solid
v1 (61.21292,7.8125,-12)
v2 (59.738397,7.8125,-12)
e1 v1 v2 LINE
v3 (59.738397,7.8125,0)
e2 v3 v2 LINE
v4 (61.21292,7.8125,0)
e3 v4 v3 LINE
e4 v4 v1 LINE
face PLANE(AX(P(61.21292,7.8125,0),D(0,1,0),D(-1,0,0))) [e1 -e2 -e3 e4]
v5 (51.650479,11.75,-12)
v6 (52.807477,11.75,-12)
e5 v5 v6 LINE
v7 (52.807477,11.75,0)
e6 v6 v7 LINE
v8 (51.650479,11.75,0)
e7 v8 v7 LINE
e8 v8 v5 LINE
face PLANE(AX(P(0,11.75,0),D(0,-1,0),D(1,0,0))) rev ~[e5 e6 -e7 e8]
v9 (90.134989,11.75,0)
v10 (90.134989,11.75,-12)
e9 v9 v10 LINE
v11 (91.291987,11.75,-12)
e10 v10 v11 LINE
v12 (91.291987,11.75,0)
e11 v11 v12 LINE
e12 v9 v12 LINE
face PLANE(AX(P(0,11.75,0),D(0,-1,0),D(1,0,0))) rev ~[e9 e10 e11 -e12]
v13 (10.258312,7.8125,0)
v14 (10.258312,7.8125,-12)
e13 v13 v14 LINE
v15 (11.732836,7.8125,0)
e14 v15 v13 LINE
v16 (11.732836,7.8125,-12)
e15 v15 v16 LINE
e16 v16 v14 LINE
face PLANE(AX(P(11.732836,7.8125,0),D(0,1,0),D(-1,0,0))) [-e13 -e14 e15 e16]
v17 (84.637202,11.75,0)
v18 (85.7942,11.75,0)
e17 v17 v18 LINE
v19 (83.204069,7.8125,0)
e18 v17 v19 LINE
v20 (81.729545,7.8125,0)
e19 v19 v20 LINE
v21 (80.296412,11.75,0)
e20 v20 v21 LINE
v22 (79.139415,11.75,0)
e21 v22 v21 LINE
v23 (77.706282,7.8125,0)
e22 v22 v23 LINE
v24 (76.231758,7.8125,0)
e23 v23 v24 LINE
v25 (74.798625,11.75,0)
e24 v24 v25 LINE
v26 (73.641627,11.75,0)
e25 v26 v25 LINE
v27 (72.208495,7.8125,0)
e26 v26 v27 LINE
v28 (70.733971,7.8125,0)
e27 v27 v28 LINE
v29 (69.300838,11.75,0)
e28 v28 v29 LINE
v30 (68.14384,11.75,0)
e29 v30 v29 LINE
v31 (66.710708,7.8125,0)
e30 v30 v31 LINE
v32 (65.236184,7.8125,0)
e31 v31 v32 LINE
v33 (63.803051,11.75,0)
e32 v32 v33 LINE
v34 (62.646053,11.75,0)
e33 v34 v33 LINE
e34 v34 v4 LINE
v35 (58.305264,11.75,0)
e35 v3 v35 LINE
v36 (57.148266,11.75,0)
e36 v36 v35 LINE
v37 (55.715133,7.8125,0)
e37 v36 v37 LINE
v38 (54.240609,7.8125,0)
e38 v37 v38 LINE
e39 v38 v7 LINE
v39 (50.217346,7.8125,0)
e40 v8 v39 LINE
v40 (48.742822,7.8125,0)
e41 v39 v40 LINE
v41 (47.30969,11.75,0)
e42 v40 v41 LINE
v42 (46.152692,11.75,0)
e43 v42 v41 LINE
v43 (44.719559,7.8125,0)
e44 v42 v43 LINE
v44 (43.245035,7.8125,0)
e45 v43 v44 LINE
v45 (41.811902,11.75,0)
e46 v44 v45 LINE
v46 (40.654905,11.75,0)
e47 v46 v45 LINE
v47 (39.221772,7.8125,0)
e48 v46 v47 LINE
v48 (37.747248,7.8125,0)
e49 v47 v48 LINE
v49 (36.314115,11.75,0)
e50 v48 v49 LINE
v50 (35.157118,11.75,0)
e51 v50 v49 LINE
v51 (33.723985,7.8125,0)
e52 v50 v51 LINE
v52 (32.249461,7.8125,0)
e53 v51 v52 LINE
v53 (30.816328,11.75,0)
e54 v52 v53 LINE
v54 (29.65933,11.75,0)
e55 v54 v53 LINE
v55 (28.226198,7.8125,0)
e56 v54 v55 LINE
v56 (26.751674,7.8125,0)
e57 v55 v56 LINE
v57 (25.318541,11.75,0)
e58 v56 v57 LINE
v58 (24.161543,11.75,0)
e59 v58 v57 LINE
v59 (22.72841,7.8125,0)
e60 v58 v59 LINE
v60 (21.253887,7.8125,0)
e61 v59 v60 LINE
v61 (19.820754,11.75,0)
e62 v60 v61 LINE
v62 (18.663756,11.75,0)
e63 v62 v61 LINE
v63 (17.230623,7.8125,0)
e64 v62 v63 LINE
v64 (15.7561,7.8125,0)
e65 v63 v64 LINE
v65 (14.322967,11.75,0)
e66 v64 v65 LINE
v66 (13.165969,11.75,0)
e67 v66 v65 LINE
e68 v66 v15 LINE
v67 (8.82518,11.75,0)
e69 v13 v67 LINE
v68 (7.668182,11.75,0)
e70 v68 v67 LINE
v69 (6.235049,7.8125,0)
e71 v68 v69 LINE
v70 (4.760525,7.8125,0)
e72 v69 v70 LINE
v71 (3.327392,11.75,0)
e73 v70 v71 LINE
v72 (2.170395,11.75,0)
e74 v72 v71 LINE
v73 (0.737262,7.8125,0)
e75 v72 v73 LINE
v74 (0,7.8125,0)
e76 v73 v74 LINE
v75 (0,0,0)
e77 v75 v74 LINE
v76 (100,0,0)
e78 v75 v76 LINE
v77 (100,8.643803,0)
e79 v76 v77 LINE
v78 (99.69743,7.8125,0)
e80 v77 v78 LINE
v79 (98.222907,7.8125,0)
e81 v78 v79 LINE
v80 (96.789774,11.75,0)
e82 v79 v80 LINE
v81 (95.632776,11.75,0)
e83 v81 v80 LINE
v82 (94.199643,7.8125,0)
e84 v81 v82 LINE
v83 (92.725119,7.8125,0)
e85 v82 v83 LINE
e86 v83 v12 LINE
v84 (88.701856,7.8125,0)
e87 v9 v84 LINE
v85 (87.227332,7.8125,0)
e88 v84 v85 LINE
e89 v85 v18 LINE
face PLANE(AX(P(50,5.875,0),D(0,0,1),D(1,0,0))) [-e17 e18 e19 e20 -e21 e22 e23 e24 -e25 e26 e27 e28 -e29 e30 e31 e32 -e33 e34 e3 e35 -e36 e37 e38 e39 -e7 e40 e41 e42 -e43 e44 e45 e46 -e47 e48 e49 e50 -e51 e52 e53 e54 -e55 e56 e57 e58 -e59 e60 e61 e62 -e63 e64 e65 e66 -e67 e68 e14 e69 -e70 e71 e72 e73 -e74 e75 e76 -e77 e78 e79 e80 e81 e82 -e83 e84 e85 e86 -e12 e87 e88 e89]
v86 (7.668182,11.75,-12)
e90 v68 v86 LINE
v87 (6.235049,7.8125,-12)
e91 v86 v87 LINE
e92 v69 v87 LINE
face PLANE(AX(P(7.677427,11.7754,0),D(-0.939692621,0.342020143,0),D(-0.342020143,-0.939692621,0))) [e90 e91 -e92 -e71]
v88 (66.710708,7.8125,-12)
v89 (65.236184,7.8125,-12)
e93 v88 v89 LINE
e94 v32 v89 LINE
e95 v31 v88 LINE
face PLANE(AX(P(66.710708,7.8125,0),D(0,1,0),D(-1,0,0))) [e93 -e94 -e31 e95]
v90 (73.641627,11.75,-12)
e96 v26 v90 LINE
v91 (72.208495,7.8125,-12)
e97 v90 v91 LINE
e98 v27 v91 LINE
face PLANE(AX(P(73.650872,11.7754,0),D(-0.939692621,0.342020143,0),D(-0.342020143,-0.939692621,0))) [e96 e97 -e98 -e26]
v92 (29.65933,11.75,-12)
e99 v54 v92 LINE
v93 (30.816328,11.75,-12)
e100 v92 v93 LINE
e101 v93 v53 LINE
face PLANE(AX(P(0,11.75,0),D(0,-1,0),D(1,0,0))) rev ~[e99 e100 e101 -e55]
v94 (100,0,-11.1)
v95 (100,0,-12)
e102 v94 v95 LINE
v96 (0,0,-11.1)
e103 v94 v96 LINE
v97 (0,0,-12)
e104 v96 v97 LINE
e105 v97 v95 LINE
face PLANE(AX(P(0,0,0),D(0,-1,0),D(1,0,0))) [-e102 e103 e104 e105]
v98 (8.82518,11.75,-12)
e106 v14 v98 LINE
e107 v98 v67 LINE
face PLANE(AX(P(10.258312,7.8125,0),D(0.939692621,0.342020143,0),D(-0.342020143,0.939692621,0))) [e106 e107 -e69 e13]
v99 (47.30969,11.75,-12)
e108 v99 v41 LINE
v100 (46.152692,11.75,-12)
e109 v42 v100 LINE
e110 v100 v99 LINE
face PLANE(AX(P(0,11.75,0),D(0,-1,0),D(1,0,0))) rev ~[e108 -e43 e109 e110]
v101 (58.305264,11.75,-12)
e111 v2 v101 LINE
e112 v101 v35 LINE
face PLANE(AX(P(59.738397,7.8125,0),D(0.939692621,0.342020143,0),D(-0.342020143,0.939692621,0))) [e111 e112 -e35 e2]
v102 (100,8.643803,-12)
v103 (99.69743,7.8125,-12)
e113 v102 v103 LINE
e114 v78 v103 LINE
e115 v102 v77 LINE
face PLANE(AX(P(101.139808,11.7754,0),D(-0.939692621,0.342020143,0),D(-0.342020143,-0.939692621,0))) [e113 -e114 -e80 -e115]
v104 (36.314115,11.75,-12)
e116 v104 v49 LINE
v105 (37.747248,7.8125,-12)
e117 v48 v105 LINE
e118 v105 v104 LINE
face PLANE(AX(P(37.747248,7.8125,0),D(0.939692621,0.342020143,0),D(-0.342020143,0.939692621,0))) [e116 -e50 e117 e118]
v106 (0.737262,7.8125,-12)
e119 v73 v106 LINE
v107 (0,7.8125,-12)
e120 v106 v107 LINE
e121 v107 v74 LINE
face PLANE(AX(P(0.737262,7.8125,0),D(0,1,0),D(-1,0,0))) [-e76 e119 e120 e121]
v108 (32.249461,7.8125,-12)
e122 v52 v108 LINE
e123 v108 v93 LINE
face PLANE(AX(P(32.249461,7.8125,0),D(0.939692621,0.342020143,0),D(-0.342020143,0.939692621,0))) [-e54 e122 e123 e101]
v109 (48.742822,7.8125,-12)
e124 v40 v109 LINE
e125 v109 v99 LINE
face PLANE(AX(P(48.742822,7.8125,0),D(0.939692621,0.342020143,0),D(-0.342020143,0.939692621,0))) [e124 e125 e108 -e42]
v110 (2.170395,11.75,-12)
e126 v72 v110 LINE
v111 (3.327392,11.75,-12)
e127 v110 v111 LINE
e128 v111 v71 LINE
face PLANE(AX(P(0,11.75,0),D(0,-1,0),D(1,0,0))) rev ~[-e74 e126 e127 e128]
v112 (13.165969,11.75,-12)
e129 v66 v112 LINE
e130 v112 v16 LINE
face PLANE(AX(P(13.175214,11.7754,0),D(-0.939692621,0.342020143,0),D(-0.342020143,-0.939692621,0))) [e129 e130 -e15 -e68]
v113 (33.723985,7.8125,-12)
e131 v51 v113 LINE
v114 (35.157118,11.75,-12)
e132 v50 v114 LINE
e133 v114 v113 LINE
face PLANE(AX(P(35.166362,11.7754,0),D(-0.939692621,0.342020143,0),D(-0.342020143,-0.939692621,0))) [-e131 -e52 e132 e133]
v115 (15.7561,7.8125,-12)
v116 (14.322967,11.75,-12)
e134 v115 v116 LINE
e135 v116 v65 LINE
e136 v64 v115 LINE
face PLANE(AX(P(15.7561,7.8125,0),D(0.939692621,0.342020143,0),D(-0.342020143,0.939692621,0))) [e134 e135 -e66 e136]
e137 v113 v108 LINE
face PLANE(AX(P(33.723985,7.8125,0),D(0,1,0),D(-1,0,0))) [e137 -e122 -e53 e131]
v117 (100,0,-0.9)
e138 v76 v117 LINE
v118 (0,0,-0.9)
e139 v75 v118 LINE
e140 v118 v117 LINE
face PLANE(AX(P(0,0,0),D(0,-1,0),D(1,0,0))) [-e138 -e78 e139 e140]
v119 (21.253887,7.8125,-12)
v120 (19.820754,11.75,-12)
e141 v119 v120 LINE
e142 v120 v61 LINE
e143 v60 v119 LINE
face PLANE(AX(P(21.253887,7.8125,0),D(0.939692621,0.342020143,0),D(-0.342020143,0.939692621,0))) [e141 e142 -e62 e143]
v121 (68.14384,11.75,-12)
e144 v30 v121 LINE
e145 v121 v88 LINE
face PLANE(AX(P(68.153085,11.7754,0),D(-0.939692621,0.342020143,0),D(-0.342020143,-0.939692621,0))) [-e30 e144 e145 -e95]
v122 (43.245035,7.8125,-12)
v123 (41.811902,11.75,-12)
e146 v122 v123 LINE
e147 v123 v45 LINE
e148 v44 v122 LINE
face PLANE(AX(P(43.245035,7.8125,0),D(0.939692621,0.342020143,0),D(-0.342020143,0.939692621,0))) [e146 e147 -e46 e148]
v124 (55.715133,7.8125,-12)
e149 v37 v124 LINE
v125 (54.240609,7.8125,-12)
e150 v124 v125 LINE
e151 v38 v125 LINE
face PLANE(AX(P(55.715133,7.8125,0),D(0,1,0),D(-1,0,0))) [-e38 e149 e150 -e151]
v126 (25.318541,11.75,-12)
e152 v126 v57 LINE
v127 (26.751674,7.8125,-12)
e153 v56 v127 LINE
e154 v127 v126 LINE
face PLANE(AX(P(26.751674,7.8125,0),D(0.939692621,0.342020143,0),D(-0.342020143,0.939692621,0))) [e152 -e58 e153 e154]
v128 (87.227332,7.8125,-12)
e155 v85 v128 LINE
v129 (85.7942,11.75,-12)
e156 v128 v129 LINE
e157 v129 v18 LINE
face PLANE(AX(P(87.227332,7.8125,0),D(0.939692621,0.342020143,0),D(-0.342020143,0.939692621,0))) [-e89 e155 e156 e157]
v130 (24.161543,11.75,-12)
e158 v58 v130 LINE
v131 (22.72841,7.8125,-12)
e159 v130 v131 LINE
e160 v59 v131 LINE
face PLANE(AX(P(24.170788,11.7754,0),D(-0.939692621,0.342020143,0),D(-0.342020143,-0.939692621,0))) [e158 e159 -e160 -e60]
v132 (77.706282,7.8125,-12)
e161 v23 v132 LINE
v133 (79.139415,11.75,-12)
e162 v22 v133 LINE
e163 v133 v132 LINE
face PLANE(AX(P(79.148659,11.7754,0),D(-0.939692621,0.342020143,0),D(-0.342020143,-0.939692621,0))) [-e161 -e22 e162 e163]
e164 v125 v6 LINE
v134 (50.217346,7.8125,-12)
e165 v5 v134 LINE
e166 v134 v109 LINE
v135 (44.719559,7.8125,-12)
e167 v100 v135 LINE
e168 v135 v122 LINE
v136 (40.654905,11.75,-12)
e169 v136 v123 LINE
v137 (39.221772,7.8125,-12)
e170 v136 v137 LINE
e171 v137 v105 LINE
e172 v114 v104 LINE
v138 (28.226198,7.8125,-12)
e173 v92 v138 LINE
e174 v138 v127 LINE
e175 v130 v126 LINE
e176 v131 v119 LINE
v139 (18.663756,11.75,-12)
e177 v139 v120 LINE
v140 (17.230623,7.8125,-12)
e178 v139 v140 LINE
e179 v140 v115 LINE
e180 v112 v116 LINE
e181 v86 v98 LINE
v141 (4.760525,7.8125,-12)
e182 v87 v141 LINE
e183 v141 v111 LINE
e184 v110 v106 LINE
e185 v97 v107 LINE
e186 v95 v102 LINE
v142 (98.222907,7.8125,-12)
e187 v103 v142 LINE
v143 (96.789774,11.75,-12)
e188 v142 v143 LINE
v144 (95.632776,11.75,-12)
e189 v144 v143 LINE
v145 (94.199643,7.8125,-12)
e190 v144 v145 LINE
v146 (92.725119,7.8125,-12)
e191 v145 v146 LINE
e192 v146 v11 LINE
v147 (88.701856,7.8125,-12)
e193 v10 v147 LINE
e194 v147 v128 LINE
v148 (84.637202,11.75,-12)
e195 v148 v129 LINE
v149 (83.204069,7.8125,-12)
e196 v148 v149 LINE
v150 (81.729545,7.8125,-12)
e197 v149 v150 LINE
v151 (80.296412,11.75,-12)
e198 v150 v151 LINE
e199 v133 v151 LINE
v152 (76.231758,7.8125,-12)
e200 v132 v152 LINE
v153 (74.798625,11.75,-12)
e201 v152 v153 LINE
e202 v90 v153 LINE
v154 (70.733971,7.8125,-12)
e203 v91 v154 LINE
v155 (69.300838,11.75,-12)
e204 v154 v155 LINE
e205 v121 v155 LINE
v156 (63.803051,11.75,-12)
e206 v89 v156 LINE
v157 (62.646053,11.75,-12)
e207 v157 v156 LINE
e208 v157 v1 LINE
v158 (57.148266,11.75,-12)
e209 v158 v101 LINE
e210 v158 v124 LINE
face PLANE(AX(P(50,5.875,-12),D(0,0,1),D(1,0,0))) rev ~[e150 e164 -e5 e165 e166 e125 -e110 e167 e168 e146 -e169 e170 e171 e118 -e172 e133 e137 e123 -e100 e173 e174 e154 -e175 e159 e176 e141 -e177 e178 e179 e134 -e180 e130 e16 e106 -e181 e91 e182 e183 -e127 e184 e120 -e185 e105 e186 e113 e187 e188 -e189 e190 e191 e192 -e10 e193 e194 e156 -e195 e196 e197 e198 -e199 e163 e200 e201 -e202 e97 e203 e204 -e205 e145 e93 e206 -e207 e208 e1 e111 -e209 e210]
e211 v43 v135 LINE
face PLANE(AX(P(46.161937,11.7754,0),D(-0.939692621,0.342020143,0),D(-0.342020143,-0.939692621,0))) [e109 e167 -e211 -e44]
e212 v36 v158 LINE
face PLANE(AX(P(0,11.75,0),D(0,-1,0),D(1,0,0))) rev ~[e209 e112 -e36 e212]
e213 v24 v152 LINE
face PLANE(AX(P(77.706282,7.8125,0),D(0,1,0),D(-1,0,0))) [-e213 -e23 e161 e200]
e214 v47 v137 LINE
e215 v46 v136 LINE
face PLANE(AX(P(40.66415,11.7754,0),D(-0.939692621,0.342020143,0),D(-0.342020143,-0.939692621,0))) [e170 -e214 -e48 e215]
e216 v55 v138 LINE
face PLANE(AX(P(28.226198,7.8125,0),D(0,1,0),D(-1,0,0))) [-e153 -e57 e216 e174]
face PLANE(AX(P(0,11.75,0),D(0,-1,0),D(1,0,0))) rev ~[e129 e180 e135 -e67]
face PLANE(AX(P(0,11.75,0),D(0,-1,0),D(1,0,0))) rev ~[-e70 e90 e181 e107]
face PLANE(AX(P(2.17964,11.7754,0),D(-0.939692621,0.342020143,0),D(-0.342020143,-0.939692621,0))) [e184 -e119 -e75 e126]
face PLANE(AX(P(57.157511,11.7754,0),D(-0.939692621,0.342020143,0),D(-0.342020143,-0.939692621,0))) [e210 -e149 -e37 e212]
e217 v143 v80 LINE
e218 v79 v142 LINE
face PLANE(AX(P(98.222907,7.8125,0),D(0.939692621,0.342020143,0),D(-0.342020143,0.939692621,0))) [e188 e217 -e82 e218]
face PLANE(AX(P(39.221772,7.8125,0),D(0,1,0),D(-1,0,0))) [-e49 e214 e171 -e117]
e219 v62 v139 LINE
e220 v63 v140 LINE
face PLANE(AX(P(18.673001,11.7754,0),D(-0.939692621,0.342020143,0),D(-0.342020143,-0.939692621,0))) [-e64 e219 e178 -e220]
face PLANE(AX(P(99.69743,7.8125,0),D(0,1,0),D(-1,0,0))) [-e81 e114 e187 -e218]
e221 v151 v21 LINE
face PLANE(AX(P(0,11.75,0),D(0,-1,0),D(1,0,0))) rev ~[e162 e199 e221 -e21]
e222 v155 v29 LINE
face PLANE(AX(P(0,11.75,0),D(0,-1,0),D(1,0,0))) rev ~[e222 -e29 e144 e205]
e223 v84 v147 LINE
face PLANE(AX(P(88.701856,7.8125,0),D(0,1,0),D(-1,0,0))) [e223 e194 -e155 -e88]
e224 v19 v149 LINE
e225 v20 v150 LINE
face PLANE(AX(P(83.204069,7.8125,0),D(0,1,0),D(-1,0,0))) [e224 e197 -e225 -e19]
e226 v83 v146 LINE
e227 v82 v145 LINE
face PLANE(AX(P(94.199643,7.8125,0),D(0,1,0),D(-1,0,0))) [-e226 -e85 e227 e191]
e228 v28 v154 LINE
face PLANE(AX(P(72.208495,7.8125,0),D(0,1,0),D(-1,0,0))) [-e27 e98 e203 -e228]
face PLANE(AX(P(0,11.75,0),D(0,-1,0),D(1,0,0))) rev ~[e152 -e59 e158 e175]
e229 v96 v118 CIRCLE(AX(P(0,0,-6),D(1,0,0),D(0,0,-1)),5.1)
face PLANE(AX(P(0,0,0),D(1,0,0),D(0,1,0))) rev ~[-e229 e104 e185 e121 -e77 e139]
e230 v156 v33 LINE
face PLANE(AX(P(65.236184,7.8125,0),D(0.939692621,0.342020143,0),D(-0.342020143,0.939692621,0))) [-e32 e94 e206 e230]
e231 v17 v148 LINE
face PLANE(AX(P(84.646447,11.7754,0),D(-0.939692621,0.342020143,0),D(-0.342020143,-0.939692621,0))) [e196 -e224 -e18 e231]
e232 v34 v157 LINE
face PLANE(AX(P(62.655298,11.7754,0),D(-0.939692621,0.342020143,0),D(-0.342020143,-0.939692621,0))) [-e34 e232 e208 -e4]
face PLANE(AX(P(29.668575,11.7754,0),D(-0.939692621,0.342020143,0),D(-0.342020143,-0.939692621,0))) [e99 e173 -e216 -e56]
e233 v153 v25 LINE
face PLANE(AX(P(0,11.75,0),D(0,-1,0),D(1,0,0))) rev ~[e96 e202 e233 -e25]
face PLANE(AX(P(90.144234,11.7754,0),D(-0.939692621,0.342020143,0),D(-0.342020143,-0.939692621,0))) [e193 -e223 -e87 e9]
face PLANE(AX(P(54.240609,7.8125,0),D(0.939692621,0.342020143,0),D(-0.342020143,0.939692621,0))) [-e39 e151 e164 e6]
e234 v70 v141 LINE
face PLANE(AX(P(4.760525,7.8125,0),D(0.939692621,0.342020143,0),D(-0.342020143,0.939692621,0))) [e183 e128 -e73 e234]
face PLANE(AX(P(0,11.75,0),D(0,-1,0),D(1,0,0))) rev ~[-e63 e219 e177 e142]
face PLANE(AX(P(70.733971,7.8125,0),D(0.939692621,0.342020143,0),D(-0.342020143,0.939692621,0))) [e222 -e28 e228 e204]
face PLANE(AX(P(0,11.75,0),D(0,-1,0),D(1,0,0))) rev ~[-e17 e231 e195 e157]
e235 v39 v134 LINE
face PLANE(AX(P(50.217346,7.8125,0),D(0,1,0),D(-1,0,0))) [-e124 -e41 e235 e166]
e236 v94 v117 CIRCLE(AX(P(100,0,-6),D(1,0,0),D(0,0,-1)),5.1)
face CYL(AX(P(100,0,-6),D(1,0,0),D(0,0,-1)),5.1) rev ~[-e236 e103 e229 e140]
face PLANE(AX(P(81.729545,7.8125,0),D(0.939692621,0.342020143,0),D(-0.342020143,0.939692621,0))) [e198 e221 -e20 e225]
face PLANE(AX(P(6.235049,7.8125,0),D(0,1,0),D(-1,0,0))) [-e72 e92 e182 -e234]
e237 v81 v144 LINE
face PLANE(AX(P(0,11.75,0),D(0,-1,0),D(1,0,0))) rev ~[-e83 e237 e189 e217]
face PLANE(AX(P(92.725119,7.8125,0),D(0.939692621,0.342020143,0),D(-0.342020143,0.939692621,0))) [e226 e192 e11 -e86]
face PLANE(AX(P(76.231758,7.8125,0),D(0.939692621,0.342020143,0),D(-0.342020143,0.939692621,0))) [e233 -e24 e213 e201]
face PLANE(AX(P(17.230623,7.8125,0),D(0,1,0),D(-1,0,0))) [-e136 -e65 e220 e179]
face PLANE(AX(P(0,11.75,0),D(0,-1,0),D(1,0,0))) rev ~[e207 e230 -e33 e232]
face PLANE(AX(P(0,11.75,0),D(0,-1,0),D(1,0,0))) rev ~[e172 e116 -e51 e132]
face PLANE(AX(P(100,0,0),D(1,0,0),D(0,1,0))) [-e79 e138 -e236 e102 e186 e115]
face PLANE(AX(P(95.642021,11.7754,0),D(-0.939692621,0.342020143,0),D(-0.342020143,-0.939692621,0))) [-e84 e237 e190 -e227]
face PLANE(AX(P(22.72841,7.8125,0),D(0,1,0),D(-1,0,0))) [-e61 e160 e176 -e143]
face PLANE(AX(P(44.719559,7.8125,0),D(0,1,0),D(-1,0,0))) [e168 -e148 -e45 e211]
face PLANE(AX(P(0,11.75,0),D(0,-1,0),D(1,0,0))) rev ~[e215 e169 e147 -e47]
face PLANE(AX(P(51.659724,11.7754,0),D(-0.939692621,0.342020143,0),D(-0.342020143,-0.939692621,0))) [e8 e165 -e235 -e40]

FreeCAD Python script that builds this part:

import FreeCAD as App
import Part
import Sketcher

V = App.Vector
Q = App.Units.Quantity

doc = App.newDocument("Part")
body = doc.addObject("PartDesign::Body", "Body")

# Sketch on XY plane
sketch1 = body.newObject("Sketcher::SketchObject", "Sketch")
sketch1.AttachmentSupport = (doc.getObject("XY_Plane"), [""])
sketch1.MapMode = "FlatFace"
sketch1.addGeometry([
    Part.LineSegment(V(0, 12, 0), V(0, 0, 0)),
    Part.LineSegment(V(0, 0, 0), V(100, 0, 0)),
    Part.LineSegment(V(100, 0, 0), V(100, 12, 0)),
    Part.LineSegment(V(100, 12, 0), V(0, 12, 0)),
], False)
sketch1.addConstraint([
    Sketcher.Constraint("Coincident", 0, 2, 1, 1),
    Sketcher.Constraint("Coincident", 1, 2, 2, 1),
    Sketcher.Constraint("Coincident", 2, 2, 3, 1),
    Sketcher.Constraint("Coincident", 3, 2, 0, 1),
    Sketcher.Constraint("Vertical", 0),
    Sketcher.Constraint("Horizontal", 1),
    Sketcher.Constraint("Vertical", 2),
    Sketcher.Constraint("Horizontal", 3),
    Sketcher.Constraint("Coincident", 0, 2, -1, 1),
    Sketcher.Constraint("DistanceX", 1, 1, 1, 2, 100.0),
    Sketcher.Constraint("DistanceY", 0, 2, 0, 1, 11.75),
])
pad1 = body.newObject("PartDesign::Pad", "Pad")
pad1.Profile = sketch1
pad1.Length = 12
pad1.Reversed = True

# Sketch on XY plane
sketch2 = body.newObject("Sketcher::SketchObject", "Sketch001")
sketch2.AttachmentSupport = (doc.getObject("XY_Plane"), [""])
sketch2.MapMode = "FlatFace"
sketch2.addGeometry([
    Part.LineSegment(V(-0.7, 7.8, 0), V(0.7, 7.8, 0)),
    Part.LineSegment(V(0.7, 7.8, 0), V(2.2, 11.8, 0)),
    Part.LineSegment(V(2.2, 11.8, 0), V(-2.2, 11.8, 0)),
    Part.LineSegment(V(-2.2, 11.8, 0), V(-0.7, 7.8, 0)),
], False)
sketch2.addConstraint([
    Sketcher.Constraint("Coincident", 0, 2, 1, 1),
    Sketcher.Constraint("Coincident", 1, 2, 2, 1),
    Sketcher.Constraint("Coincident", 2, 2, 3, 1),
    Sketcher.Constraint("Coincident", 3, 2, 0, 1),
    Sketcher.Constraint("Horizontal", 0),
    Sketcher.Constraint("Horizontal", 2),
    Sketcher.Constraint("Equal", 1, 3),
    Sketcher.Constraint("Angle", 1, Q("70 deg")),
    Sketcher.Constraint("DistanceX", 2, 2, 2, 1, 4.359279),
    Sketcher.Constraint("DistanceY", -1, 1, 0, 2, 7.8125),
    Sketcher.Constraint("DistanceY", -1, 1, 1, 2, 11.7754),
    Sketcher.Constraint("DistanceX", -1, 1, 0, 2, 0.737262),
])
pocket1 = body.newObject("PartDesign::Pocket", "Pocket")
pocket1.Profile = sketch2
pocket1.Type = "ThroughAll"
doc.recompute()

linearpattern = body.newObject("PartDesign::LinearPattern", "LinearPattern")
linearpattern.Originals = [pocket1]
linearpattern.Direction = (doc.getObject("X_Axis"), [""])
linearpattern.Mode = "offset"
linearpattern.Offset = 5.497787
linearpattern.Occurrences = 19
body.Tip = linearpattern

# Sketch on YZ plane
sketch3 = body.newObject("Sketcher::SketchObject", "Sketch002")
sketch3.AttachmentSupport = (doc.getObject("YZ_Plane"), [""])
sketch3.MapMode = "FlatFace"
sketch3.AttachmentOffset = App.Placement(V(0, 0, 100), App.Rotation())
sketch3.addGeometry(Part.Circle(V(0, -6, 0), V(0, 0, 1), 5), False)
sketch3.addConstraint([
    Sketcher.Constraint("PointOnObject", 0, 3, -2),
    Sketcher.Constraint("Diameter", 0, 10.2),
    Sketcher.Constraint("DistanceY", 0, 3, -1, 1, 6.0),
])
pocket2 = body.newObject("PartDesign::Pocket", "Pocket001")
pocket2.Profile = sketch3
pocket2.Type = "ThroughAll"

doc.recompute()
